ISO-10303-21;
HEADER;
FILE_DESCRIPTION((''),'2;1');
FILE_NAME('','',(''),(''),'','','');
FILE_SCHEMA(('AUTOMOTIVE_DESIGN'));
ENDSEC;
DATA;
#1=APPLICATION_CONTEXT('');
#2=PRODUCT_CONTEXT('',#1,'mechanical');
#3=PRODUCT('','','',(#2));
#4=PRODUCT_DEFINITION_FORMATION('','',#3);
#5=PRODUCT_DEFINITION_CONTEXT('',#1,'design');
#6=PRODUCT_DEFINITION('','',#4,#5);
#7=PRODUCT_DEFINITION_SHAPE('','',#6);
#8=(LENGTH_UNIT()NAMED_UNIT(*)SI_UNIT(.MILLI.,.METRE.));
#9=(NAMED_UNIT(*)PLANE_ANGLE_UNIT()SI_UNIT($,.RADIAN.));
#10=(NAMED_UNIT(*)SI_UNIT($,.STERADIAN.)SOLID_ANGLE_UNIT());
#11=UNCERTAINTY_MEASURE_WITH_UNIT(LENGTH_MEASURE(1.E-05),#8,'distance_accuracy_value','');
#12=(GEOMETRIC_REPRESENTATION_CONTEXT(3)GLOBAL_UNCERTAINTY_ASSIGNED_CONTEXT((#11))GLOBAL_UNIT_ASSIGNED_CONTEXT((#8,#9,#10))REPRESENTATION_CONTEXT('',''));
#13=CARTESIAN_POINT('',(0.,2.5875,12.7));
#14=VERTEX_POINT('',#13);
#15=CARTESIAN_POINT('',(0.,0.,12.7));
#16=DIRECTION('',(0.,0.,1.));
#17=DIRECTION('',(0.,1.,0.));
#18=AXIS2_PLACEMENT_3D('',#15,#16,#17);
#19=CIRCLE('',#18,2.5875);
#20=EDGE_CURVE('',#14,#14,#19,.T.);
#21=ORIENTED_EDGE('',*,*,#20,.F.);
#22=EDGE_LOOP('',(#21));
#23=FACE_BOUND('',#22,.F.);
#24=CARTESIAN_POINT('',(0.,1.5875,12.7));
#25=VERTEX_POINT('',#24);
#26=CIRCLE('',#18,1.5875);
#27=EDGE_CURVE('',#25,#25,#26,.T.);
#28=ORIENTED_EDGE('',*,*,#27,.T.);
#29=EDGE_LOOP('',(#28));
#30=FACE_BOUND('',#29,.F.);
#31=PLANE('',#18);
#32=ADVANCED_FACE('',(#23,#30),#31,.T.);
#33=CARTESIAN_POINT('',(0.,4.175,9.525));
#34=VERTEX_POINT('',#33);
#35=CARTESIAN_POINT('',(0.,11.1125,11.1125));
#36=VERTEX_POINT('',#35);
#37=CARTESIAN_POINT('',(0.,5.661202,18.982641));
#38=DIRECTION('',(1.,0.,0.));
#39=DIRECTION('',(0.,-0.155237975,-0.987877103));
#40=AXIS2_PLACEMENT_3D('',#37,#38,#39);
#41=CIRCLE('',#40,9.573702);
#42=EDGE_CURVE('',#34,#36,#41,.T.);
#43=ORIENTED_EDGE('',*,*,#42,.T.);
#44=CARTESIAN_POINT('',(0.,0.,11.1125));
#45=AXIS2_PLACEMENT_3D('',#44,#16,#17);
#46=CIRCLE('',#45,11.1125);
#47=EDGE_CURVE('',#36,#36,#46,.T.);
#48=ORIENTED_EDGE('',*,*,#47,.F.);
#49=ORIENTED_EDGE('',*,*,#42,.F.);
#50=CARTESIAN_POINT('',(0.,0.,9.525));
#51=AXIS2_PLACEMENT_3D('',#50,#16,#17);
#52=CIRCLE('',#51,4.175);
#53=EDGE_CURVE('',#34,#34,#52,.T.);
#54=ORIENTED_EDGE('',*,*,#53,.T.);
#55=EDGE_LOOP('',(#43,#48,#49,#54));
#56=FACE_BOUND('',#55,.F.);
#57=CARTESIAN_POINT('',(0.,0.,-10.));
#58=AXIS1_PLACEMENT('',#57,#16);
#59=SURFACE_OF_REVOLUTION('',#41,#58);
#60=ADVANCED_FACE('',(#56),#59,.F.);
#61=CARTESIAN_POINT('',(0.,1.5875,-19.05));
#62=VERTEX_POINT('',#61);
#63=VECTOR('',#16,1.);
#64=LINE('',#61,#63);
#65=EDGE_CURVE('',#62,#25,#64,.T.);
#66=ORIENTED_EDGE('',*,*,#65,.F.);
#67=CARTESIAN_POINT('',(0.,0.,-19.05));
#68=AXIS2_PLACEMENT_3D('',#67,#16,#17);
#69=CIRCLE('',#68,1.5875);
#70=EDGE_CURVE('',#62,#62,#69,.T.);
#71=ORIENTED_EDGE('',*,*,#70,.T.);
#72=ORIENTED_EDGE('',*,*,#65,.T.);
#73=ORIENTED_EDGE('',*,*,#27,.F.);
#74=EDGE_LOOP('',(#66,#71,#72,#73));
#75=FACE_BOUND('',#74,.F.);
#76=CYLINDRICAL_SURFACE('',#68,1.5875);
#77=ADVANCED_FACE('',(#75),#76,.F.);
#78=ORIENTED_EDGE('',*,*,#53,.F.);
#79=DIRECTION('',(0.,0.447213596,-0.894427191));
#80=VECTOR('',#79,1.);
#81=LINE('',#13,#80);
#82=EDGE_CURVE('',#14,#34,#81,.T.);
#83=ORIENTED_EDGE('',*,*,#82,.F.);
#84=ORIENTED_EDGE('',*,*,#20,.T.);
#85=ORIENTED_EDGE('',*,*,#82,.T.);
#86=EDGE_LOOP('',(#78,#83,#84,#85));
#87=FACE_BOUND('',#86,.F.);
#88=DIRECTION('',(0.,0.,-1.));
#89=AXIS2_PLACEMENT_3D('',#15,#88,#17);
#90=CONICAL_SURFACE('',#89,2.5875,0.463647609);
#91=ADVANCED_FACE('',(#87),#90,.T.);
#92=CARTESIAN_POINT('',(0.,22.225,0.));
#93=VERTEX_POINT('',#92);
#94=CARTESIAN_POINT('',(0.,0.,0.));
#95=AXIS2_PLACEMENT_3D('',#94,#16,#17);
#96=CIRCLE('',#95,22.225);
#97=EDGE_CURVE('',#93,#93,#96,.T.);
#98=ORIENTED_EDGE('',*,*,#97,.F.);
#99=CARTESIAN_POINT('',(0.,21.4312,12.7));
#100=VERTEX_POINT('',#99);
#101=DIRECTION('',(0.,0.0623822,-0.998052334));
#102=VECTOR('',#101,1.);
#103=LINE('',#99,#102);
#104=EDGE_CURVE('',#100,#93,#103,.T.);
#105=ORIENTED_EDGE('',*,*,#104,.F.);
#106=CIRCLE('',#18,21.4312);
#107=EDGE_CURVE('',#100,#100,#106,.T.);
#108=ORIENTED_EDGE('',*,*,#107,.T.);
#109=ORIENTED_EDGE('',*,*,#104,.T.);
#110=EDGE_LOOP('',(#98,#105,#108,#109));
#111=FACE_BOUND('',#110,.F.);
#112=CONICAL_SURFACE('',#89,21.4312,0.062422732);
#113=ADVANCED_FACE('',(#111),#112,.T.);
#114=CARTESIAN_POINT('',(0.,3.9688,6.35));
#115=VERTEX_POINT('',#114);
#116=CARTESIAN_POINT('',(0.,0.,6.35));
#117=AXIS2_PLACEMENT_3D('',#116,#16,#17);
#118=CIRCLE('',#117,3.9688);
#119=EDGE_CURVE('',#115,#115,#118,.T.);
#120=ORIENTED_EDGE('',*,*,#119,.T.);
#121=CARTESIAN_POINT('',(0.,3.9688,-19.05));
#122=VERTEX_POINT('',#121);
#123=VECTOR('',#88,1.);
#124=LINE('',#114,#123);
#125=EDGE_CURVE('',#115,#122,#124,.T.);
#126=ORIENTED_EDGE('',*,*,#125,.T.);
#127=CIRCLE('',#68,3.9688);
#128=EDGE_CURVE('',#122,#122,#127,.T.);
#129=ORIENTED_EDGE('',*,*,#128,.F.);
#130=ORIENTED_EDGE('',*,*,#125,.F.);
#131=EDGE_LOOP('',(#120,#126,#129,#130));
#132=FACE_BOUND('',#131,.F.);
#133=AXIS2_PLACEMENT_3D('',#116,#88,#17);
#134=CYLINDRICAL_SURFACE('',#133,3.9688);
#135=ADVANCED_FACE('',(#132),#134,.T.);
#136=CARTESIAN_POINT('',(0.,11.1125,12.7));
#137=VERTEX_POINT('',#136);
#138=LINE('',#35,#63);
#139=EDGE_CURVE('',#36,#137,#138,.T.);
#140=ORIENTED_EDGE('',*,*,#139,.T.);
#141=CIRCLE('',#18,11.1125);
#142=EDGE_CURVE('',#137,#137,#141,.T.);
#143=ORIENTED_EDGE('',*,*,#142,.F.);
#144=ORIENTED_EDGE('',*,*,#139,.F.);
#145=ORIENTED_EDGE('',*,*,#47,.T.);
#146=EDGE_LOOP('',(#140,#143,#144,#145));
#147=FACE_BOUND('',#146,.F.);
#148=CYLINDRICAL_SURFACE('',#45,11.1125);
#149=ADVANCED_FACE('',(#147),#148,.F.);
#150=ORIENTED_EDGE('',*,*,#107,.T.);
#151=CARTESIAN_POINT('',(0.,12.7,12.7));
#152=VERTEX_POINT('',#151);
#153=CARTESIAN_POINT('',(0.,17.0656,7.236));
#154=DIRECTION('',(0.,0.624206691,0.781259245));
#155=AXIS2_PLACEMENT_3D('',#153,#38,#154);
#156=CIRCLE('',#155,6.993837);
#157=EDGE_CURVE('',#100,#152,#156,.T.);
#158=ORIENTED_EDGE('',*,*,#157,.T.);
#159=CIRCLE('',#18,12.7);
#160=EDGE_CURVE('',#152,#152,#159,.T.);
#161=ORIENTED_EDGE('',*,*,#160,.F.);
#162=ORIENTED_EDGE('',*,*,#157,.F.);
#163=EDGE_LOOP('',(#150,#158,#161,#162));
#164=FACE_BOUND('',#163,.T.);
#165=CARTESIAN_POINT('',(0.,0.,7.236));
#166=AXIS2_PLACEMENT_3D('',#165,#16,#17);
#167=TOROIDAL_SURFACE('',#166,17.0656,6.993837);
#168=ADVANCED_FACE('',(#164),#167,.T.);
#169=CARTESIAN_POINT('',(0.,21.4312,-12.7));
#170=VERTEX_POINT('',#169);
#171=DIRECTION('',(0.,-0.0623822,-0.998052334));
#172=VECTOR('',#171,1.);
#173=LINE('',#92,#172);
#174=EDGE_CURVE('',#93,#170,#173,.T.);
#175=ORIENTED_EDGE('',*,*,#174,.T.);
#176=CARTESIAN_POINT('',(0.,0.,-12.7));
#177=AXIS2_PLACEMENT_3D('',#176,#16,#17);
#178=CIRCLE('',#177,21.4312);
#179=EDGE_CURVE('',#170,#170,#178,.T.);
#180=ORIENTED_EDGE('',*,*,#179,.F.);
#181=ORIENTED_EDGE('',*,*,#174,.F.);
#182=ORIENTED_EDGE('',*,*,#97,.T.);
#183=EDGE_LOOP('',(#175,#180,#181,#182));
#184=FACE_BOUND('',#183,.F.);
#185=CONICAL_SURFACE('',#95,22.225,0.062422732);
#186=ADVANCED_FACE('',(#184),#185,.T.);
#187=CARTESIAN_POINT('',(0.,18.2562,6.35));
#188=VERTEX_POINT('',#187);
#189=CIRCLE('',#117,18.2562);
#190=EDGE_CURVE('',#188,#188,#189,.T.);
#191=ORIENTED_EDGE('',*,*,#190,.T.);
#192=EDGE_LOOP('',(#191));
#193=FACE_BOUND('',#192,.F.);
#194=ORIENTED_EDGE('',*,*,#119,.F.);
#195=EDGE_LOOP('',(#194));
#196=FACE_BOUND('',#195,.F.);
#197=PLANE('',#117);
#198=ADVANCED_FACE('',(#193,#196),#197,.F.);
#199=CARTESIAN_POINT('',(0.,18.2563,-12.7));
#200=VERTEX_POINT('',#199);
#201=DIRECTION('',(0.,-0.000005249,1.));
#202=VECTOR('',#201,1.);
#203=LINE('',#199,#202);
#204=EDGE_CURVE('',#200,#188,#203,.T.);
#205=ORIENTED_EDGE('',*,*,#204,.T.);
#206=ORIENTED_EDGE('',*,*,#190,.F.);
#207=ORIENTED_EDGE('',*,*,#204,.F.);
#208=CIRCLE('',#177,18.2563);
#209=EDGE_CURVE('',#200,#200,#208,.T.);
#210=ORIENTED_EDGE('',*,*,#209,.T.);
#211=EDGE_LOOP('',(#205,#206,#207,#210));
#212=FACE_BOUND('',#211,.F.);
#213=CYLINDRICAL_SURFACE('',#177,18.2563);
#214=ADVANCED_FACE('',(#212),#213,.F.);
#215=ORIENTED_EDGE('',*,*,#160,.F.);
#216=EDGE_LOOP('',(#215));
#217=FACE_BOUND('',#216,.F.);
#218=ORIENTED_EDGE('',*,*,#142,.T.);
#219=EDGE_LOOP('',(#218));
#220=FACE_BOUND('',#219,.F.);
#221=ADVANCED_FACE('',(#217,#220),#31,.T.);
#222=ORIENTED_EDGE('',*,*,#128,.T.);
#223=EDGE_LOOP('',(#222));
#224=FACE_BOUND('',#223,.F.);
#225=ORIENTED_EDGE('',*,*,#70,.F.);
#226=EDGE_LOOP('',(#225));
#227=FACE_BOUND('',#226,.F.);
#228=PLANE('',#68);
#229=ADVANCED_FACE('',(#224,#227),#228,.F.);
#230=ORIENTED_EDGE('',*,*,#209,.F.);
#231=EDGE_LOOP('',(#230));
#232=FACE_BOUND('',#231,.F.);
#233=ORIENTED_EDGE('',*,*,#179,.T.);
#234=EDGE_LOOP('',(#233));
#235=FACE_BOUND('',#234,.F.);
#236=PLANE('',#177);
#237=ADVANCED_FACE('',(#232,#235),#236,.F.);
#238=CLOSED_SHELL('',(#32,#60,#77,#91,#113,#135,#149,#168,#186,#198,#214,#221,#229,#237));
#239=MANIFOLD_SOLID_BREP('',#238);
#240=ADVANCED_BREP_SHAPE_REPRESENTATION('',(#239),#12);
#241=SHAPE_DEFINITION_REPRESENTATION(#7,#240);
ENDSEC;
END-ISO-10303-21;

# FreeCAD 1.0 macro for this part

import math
import FreeCAD as App
import Part
import Sketcher
from FreeCAD import Vector
Q = App.Units.Quantity

doc = App.newDocument("Part")
body = doc.addObject("PartDesign::Body", "Body")

sketch1 = body.newObject("Sketcher::SketchObject", "Sketch")
sketch1.AttachmentSupport = (doc.getObject("YZ_Plane"), [""])
sketch1.MapMode = "FlatFace"
sketch1.addGeometry([
    Part.LineSegment(Vector(1.5875, 12.7, 0), Vector(1.5875, -19.05, 0)),
    Part.LineSegment(Vector(1.5875, -19.05, 0), Vector(3.9688, -19.05, 0)),
    Part.LineSegment(Vector(3.9688, -19.05, 0), Vector(3.9688, 6.35, 0)),
    Part.LineSegment(Vector(3.9688, 6.35, 0), Vector(18.2562, 6.35, 0)),
    Part.LineSegment(Vector(18.2562, 6.35, 0), Vector(18.2563, -12.7, 0)),
    Part.LineSegment(Vector(18.2563, -12.7, 0), Vector(21.4312, -12.7, 0)),
    Part.LineSegment(Vector(21.4312, -12.7, 0), Vector(22.225, 0, 0)),
    Part.LineSegment(Vector(22.225, 0, 0), Vector(21.4312, 12.7, 0)),
    Part.ArcOfCircle(Part.Circle(Vector(17.0656, 7.236, 0), Vector(0, 0, 1), 6.993837), math.radians(51.376016), math.radians(128.623984)),
    Part.LineSegment(Vector(12.7, 12.7, 0), Vector(11.1125, 12.7, 0)),
    Part.LineSegment(Vector(11.1125, 12.7, 0), Vector(11.1125, 11.1125, 0)),
    Part.ArcOfCircle(Part.Circle(Vector(5.6612, 18.9827, 0), Vector(0, 0, 1), 9.57376), math.radians(-98.930531), math.radians(-55.291561)),
    Part.LineSegment(Vector(4.175, 9.525, 0), Vector(2.5875, 12.7, 0)),
    Part.LineSegment(Vector(2.5875, 12.7, 0), Vector(1.5875, 12.7, 0)),
], False)
sketch1.addConstraint([
    Sketcher.Constraint("Coincident", 0, 2, 1, 1),
    Sketcher.Constraint("Coincident", 1, 2, 2, 1),
    Sketcher.Constraint("Coincident", 2, 2, 3, 1),
    Sketcher.Constraint("Coincident", 3, 2, 4, 1),
    Sketcher.Constraint("Coincident", 4, 2, 5, 1),
    Sketcher.Constraint("Coincident", 5, 2, 6, 1),
    Sketcher.Constraint("Coincident", 6, 2, 7, 1),
    Sketcher.Constraint("Coincident", 7, 2, 8, 1),
    Sketcher.Constraint("Coincident", 8, 2, 9, 1),
    Sketcher.Constraint("Coincident", 9, 2, 10, 1),
    Sketcher.Constraint("Coincident", 10, 2, 11, 2),
    Sketcher.Constraint("Coincident", 11, 1, 12, 1),
    Sketcher.Constraint("Coincident", 12, 2, 13, 1),
    Sketcher.Constraint("Coincident", 13, 2, 0, 1),
    Sketcher.Constraint("Vertical", 0),
    Sketcher.Constraint("Horizontal", 1),
    Sketcher.Constraint("Vertical", 2),
    Sketcher.Constraint("Horizontal", 3),
    Sketcher.Constraint("Vertical", 4),
    Sketcher.Constraint("Horizontal", 5),
    Sketcher.Constraint("Horizontal", 9),
    Sketcher.Constraint("Vertical", 10),
    Sketcher.Constraint("Horizontal", 13),
    Sketcher.Constraint("Symmetric", 5, 2, 7, 2, -1),
    Sketcher.Constraint("PointOnObject", 6, 2, -1),
    Sketcher.Constraint("Horizontal", 7, 2, 8, 2),
    Sketcher.Constraint("Horizontal", 9, 2, 12, 2),
    Sketcher.Constraint("Equal", 9, 10),
    Sketcher.Constraint("DistanceY", 4, 2, 4, 1, Q("0.75 in")),
    Sketcher.Constraint("DistanceY", 4, 2, -1, 1, Q("0.5 in")),
    Sketcher.Constraint("DistanceX", -1, 1, 8, 2, Q("0.5 in")),
    Sketcher.Constraint("DistanceX", 1, 1, 1, 2, Q("0.093752 in")),
    Sketcher.Constraint("DistanceX", 5, 1, 5, 2, Q("0.125 in")),
    Sketcher.Constraint("DistanceX", 9, 2, 9, 1, Q("0.0625 in")),
    Sketcher.Constraint("DistanceY", 2, 1, 2, 2, Q("1 in")),
    Sketcher.Constraint("Radius", 8, Q("6.9938 mm")),
    Sketcher.Constraint("Radius", 11, Q("9.5738 mm")),
    Sketcher.Constraint("DistanceX", -1, 1, 0, 2, Q("0.0625 in")),
    Sketcher.Constraint("DistanceX", -1, 1, 5, 2, Q("0.843748 in")),
    Sketcher.Constraint("DistanceX", -1, 1, 6, 2, Q("0.875 in")),
    Sketcher.Constraint("DistanceY", 2, 2, 11, 1, Q("0.125 in")),
    Sketcher.Constraint("DistanceX", 12, 2, 11, 1, Q("0.0625 in")),
    Sketcher.Constraint("DistanceX", 13, 2, 13, 1, Q("1 mm")),
])
revolution = body.newObject("PartDesign::Revolution", "Revolution")
revolution.Profile = sketch1
revolution.ReferenceAxis = (sketch1, ["V_Axis"])
revolution.Angle = 360

doc.recompute()
